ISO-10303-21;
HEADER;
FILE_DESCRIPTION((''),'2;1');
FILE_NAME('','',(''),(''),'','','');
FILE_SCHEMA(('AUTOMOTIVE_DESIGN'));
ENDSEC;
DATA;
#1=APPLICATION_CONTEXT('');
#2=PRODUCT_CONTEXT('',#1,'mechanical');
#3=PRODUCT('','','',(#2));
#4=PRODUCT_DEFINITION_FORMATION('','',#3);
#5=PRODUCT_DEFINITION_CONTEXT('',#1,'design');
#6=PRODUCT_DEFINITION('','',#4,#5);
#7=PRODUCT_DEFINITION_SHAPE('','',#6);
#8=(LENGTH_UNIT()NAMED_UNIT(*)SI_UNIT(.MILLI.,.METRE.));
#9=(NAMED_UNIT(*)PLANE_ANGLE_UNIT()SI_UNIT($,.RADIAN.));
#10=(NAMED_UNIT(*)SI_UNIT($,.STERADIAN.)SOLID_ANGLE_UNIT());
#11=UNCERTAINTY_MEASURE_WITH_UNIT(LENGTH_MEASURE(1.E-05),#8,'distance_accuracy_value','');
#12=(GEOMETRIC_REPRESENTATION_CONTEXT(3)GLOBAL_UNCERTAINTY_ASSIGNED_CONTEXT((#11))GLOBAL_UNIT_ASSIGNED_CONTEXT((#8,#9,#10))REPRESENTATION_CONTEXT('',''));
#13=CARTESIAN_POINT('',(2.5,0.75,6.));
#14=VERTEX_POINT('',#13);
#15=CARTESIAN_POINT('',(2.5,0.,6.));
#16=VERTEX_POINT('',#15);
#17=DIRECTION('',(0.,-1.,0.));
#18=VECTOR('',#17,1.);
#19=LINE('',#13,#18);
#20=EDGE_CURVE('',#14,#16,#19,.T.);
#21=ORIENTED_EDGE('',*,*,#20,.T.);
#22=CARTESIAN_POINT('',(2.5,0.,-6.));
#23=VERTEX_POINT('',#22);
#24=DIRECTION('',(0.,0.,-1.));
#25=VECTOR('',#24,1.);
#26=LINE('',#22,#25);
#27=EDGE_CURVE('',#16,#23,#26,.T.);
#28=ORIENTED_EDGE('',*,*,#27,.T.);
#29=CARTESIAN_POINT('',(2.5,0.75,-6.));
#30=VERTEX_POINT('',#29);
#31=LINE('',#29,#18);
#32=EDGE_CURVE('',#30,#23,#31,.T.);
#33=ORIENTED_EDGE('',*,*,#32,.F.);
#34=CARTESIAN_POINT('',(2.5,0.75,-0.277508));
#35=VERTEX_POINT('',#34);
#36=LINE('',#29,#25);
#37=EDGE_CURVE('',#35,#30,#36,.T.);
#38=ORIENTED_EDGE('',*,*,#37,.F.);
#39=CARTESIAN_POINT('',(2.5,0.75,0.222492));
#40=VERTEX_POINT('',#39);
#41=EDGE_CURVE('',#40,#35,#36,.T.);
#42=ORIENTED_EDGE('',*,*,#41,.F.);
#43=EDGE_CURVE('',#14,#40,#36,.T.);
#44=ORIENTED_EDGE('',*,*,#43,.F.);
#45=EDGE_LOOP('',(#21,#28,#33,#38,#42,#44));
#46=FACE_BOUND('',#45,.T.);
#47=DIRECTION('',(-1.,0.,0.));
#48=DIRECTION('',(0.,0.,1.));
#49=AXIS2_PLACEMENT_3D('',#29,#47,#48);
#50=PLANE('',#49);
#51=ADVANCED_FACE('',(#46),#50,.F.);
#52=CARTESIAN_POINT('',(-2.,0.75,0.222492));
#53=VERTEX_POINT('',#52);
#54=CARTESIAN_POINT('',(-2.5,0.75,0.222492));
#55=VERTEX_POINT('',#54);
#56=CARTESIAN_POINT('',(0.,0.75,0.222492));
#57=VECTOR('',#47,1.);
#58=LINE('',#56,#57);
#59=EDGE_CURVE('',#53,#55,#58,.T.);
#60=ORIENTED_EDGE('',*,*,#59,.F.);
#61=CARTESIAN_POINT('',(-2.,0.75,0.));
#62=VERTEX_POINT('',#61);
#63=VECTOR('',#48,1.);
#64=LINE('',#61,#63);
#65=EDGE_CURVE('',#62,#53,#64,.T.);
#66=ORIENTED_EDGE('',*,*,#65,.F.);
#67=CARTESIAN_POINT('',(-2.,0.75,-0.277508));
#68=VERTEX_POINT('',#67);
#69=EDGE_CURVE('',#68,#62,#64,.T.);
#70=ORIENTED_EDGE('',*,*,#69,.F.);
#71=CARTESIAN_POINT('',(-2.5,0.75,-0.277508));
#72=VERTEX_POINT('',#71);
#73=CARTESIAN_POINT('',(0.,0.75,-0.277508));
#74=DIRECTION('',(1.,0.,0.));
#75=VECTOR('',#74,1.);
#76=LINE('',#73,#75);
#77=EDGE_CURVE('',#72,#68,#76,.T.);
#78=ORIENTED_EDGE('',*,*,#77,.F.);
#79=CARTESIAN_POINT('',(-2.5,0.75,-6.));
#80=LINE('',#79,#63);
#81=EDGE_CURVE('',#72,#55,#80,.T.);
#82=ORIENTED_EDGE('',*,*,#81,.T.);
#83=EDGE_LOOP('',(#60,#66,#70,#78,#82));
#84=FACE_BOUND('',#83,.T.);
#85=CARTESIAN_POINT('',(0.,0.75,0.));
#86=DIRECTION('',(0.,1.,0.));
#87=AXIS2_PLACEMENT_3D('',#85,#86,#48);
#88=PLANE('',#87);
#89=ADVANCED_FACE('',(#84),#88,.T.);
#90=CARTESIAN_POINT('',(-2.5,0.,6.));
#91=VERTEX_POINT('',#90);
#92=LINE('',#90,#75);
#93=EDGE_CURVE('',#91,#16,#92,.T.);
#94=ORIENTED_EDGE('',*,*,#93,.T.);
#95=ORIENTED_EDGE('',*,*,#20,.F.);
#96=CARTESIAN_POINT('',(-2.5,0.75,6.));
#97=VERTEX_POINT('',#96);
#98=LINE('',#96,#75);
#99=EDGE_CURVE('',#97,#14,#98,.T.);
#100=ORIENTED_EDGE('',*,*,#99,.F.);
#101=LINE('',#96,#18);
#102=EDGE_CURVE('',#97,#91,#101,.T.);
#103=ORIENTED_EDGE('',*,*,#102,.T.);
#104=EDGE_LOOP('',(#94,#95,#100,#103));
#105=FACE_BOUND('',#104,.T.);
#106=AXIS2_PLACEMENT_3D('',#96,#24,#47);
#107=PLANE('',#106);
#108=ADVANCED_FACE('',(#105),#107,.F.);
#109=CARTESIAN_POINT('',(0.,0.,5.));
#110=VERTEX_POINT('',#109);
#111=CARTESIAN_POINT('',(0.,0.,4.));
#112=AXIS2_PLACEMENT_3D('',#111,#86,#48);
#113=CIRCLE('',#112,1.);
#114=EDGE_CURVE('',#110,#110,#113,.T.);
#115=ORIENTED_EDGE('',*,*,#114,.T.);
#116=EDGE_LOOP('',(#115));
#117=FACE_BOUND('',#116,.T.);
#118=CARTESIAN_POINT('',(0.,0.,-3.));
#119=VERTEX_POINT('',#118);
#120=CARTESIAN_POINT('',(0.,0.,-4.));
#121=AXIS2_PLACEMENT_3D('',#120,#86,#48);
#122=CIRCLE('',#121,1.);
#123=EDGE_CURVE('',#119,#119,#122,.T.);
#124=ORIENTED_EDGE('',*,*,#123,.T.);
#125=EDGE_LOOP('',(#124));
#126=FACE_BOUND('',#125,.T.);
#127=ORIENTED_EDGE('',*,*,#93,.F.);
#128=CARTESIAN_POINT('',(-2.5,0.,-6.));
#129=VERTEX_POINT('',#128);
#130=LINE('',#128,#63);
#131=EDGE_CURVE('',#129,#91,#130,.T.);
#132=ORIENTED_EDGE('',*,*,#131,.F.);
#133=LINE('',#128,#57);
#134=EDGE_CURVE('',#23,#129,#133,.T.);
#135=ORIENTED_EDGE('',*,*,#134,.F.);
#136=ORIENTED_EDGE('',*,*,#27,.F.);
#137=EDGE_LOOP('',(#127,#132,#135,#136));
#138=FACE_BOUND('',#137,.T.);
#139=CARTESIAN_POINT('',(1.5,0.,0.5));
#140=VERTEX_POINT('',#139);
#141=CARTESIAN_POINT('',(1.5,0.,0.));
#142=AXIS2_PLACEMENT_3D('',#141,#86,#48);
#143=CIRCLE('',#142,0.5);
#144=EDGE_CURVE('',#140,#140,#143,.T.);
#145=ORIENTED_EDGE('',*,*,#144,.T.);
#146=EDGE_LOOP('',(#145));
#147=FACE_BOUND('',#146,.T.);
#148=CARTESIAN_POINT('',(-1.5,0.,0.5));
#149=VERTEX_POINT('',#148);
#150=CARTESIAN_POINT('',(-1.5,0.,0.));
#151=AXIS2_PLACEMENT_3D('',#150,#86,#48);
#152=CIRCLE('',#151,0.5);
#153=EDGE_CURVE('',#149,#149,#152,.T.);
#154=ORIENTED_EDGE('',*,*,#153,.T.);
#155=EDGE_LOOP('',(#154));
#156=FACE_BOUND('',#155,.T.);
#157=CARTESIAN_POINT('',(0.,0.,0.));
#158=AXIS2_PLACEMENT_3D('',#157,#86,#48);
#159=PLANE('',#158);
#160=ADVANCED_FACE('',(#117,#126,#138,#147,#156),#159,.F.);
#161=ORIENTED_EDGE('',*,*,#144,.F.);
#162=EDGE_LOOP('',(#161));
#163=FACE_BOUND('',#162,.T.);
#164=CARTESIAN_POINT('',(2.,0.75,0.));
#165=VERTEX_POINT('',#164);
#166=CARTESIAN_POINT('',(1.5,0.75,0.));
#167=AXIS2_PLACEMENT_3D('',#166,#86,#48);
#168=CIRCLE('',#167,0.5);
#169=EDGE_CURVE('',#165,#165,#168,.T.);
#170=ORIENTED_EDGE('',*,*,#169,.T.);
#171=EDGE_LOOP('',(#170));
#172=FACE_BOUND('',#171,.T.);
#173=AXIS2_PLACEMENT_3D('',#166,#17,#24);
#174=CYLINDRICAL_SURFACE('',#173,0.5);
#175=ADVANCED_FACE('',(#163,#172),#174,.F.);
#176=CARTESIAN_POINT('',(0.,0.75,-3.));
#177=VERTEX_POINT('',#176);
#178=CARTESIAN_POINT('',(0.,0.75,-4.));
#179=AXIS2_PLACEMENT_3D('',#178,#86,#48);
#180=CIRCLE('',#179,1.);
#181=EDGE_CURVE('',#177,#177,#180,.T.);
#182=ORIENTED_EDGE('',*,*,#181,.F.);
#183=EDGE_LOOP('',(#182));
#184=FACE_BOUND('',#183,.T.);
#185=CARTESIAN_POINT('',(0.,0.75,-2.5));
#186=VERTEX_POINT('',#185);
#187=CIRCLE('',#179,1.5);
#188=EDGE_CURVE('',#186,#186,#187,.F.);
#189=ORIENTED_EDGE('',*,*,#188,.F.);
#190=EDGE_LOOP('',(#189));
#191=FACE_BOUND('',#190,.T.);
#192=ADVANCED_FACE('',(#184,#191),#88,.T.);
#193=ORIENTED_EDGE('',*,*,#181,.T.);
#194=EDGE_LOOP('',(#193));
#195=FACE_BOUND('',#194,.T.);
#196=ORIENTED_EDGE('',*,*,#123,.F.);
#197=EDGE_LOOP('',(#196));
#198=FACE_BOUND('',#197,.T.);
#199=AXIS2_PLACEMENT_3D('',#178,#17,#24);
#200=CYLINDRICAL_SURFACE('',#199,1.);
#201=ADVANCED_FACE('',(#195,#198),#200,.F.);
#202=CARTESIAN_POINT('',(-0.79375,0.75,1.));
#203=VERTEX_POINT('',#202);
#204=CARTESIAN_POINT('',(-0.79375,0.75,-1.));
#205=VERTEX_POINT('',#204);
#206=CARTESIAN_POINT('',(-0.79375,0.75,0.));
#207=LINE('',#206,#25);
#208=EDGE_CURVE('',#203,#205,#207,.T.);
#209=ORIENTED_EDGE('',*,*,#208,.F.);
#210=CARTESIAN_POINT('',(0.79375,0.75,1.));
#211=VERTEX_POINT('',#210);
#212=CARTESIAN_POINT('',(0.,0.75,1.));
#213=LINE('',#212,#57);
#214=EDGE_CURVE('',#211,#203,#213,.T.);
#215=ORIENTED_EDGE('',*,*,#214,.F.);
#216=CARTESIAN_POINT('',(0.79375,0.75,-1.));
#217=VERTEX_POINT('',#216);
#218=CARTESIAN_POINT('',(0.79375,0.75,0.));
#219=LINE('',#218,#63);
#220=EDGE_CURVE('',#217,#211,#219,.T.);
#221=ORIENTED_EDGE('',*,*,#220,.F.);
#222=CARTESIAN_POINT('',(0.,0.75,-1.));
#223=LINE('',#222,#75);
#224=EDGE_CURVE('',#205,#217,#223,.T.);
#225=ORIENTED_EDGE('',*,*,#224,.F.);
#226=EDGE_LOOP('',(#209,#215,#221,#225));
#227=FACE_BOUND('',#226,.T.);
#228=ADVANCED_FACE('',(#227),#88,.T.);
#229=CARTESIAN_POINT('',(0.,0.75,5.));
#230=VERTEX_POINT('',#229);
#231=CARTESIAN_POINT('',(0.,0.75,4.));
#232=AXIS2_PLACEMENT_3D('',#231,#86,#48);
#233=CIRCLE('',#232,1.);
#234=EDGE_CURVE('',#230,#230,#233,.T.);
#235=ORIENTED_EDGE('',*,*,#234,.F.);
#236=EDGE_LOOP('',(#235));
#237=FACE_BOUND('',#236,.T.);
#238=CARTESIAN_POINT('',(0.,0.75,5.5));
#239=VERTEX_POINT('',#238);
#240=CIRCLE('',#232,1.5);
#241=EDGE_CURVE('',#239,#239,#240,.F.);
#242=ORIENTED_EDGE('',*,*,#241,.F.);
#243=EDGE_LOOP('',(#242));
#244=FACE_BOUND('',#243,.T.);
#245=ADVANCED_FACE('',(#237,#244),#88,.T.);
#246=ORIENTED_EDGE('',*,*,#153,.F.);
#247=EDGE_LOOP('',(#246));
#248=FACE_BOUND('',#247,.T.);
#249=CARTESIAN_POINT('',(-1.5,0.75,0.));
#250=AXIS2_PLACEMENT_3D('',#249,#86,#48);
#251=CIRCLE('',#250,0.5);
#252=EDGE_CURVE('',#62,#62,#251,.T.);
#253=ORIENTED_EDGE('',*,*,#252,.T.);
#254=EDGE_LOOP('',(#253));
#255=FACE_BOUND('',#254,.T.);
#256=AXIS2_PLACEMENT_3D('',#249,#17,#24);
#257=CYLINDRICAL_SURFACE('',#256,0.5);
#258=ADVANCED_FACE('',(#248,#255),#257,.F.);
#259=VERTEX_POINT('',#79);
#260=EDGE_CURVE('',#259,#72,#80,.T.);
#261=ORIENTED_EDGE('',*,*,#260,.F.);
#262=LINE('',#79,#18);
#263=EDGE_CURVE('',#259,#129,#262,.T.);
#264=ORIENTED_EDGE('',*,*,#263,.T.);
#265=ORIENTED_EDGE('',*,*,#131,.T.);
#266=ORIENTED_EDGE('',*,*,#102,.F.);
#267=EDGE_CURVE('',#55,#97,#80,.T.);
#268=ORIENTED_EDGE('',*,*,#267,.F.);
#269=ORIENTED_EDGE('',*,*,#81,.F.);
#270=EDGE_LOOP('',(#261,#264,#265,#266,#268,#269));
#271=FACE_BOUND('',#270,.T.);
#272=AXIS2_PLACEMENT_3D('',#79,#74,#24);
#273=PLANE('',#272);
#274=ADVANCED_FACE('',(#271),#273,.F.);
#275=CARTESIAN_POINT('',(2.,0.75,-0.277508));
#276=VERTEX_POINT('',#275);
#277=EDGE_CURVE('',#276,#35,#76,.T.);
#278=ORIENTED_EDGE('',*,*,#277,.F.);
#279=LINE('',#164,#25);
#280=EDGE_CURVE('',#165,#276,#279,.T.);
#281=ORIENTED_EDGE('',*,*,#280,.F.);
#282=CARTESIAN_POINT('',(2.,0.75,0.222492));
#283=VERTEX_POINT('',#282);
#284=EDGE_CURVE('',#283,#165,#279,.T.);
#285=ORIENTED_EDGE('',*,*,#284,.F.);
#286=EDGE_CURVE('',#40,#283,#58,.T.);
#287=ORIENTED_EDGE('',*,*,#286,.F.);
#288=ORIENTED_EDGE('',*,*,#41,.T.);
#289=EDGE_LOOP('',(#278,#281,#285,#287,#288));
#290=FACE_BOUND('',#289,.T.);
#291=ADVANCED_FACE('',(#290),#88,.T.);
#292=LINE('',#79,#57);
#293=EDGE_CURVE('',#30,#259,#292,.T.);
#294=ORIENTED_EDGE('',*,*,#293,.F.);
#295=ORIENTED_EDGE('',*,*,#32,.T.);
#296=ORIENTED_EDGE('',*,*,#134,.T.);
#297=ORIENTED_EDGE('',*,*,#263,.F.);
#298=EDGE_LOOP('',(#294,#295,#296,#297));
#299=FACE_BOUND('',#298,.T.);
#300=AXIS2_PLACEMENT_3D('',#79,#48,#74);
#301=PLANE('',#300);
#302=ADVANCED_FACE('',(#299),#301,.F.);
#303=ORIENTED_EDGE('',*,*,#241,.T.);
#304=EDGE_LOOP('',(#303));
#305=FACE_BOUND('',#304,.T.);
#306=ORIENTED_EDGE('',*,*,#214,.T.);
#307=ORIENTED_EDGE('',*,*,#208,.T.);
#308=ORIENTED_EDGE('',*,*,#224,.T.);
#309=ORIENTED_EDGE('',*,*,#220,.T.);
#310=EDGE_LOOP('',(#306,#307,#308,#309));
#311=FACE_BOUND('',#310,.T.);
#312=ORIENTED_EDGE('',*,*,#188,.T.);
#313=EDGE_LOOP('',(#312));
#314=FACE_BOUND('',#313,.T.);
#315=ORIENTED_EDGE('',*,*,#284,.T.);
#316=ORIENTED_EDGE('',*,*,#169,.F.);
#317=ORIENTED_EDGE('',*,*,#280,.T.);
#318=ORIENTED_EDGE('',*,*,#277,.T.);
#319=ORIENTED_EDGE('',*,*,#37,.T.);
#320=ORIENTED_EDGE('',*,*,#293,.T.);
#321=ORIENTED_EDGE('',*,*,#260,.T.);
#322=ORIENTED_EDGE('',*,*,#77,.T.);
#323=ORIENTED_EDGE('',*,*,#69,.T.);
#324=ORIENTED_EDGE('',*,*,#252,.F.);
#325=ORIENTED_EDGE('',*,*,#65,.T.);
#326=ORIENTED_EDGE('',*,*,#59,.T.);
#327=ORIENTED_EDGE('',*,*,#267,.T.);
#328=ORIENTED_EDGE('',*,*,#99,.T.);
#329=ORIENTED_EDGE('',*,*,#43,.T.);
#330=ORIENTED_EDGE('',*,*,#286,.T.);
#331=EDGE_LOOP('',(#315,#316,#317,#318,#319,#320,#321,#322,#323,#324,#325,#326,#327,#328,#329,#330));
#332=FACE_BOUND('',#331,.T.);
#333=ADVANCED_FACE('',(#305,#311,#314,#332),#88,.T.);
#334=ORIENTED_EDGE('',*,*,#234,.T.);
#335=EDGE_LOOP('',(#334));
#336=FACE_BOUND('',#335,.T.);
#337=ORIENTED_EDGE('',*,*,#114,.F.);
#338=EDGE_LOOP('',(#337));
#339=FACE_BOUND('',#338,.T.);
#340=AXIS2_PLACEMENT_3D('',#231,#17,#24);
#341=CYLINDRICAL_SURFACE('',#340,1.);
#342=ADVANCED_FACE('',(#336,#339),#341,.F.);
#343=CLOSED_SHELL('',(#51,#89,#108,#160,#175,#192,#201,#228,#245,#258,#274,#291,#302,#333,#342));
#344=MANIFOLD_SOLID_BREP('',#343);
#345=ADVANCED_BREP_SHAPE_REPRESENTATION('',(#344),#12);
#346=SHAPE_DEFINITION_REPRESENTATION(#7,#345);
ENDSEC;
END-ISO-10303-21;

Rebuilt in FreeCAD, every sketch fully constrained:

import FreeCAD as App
import Part
import Sketcher
Q = App.Units.Quantity


def add_polygon(sketch, points):
    """Adds a closed chain of lines whose ends are joined by coincident constraints."""
    first, n = sketch.GeometryCount, len(points)
    for a, b in zip(points, points[1:] + points[:1]):
        sketch.addGeometry(Part.LineSegment(App.Vector(*a, 0), App.Vector(*b, 0)), False)
    for i in range(n):
        sketch.addConstraint(Sketcher.Constraint("Coincident", first + i, 2, first + (i + 1) % n, 1))

doc = App.newDocument("Part")
body = doc.addObject("PartDesign::Body", "Body")

# Sketch on XZ plane
sketch1 = doc.addObject("Sketcher::SketchObject", "Sketch")
body.addObject(sketch1)
sketch1.AttachmentSupport = (doc.XZ_Plane, [""])
sketch1.MapMode = "FlatFace"
add_polygon(sketch1, [(-2.5, -6), (-2.5, 6), (2.5, 6), (2.5, -6)])  # lines 0-3
sketch1.addGeometry(Part.Circle(App.Vector(0, 4, 0), App.Vector(0, 0, 1), 1), False)  # 4
sketch1.addGeometry(Part.Circle(App.Vector(-1.5, 0, 0), App.Vector(0, 0, 1), 0.5), False)  # 5
sketch1.addGeometry(Part.Circle(App.Vector(1.5, 0, 0), App.Vector(0, 0, 1), 0.5), False)  # 6
sketch1.addGeometry(Part.Circle(App.Vector(0, -4, 0), App.Vector(0, 0, 1), 1), False)  # 7
sketch1.addConstraint([
    Sketcher.Constraint("Vertical", 0),
    Sketcher.Constraint("Horizontal", 1),
    Sketcher.Constraint("Vertical", 2),
    Sketcher.Constraint("Horizontal", 3),
    Sketcher.Constraint("Equal", 5, 6),
    Sketcher.Constraint("Equal", 4, 7),
    Sketcher.Constraint("Symmetric", 5, 3, 6, 3, -1, 1),
    Sketcher.Constraint("Symmetric", 4, 3, 7, 3, -1, 1),
    Sketcher.Constraint("Symmetric", 0, 2, 2, 2, -1, 1),
    Sketcher.Constraint("PointOnObject", 4, 3, -2),
    Sketcher.Constraint("PointOnObject", 5, 3, -1),
    Sketcher.Constraint("Diameter", 4, Q("2 mm")),
    Sketcher.Constraint("Diameter", 5, Q("1 mm")),
    Sketcher.Constraint("DistanceX", 1, 1, 1, 2, Q("5 mm")),
    Sketcher.Constraint("DistanceY", 0, 1, 0, 2, Q("12 mm")),
    Sketcher.Constraint("DistanceY", -1, 1, 4, 3, Q("4 mm")),
    Sketcher.Constraint("DistanceX", 5, 3, 6, 3, Q("3 mm")),
])
pad1 = doc.addObject("PartDesign::Pad", "Pad")
body.addObject(pad1)
pad1.Profile = sketch1
pad1.Length = 0.75
pad1.Reversed = True

doc.recompute()
